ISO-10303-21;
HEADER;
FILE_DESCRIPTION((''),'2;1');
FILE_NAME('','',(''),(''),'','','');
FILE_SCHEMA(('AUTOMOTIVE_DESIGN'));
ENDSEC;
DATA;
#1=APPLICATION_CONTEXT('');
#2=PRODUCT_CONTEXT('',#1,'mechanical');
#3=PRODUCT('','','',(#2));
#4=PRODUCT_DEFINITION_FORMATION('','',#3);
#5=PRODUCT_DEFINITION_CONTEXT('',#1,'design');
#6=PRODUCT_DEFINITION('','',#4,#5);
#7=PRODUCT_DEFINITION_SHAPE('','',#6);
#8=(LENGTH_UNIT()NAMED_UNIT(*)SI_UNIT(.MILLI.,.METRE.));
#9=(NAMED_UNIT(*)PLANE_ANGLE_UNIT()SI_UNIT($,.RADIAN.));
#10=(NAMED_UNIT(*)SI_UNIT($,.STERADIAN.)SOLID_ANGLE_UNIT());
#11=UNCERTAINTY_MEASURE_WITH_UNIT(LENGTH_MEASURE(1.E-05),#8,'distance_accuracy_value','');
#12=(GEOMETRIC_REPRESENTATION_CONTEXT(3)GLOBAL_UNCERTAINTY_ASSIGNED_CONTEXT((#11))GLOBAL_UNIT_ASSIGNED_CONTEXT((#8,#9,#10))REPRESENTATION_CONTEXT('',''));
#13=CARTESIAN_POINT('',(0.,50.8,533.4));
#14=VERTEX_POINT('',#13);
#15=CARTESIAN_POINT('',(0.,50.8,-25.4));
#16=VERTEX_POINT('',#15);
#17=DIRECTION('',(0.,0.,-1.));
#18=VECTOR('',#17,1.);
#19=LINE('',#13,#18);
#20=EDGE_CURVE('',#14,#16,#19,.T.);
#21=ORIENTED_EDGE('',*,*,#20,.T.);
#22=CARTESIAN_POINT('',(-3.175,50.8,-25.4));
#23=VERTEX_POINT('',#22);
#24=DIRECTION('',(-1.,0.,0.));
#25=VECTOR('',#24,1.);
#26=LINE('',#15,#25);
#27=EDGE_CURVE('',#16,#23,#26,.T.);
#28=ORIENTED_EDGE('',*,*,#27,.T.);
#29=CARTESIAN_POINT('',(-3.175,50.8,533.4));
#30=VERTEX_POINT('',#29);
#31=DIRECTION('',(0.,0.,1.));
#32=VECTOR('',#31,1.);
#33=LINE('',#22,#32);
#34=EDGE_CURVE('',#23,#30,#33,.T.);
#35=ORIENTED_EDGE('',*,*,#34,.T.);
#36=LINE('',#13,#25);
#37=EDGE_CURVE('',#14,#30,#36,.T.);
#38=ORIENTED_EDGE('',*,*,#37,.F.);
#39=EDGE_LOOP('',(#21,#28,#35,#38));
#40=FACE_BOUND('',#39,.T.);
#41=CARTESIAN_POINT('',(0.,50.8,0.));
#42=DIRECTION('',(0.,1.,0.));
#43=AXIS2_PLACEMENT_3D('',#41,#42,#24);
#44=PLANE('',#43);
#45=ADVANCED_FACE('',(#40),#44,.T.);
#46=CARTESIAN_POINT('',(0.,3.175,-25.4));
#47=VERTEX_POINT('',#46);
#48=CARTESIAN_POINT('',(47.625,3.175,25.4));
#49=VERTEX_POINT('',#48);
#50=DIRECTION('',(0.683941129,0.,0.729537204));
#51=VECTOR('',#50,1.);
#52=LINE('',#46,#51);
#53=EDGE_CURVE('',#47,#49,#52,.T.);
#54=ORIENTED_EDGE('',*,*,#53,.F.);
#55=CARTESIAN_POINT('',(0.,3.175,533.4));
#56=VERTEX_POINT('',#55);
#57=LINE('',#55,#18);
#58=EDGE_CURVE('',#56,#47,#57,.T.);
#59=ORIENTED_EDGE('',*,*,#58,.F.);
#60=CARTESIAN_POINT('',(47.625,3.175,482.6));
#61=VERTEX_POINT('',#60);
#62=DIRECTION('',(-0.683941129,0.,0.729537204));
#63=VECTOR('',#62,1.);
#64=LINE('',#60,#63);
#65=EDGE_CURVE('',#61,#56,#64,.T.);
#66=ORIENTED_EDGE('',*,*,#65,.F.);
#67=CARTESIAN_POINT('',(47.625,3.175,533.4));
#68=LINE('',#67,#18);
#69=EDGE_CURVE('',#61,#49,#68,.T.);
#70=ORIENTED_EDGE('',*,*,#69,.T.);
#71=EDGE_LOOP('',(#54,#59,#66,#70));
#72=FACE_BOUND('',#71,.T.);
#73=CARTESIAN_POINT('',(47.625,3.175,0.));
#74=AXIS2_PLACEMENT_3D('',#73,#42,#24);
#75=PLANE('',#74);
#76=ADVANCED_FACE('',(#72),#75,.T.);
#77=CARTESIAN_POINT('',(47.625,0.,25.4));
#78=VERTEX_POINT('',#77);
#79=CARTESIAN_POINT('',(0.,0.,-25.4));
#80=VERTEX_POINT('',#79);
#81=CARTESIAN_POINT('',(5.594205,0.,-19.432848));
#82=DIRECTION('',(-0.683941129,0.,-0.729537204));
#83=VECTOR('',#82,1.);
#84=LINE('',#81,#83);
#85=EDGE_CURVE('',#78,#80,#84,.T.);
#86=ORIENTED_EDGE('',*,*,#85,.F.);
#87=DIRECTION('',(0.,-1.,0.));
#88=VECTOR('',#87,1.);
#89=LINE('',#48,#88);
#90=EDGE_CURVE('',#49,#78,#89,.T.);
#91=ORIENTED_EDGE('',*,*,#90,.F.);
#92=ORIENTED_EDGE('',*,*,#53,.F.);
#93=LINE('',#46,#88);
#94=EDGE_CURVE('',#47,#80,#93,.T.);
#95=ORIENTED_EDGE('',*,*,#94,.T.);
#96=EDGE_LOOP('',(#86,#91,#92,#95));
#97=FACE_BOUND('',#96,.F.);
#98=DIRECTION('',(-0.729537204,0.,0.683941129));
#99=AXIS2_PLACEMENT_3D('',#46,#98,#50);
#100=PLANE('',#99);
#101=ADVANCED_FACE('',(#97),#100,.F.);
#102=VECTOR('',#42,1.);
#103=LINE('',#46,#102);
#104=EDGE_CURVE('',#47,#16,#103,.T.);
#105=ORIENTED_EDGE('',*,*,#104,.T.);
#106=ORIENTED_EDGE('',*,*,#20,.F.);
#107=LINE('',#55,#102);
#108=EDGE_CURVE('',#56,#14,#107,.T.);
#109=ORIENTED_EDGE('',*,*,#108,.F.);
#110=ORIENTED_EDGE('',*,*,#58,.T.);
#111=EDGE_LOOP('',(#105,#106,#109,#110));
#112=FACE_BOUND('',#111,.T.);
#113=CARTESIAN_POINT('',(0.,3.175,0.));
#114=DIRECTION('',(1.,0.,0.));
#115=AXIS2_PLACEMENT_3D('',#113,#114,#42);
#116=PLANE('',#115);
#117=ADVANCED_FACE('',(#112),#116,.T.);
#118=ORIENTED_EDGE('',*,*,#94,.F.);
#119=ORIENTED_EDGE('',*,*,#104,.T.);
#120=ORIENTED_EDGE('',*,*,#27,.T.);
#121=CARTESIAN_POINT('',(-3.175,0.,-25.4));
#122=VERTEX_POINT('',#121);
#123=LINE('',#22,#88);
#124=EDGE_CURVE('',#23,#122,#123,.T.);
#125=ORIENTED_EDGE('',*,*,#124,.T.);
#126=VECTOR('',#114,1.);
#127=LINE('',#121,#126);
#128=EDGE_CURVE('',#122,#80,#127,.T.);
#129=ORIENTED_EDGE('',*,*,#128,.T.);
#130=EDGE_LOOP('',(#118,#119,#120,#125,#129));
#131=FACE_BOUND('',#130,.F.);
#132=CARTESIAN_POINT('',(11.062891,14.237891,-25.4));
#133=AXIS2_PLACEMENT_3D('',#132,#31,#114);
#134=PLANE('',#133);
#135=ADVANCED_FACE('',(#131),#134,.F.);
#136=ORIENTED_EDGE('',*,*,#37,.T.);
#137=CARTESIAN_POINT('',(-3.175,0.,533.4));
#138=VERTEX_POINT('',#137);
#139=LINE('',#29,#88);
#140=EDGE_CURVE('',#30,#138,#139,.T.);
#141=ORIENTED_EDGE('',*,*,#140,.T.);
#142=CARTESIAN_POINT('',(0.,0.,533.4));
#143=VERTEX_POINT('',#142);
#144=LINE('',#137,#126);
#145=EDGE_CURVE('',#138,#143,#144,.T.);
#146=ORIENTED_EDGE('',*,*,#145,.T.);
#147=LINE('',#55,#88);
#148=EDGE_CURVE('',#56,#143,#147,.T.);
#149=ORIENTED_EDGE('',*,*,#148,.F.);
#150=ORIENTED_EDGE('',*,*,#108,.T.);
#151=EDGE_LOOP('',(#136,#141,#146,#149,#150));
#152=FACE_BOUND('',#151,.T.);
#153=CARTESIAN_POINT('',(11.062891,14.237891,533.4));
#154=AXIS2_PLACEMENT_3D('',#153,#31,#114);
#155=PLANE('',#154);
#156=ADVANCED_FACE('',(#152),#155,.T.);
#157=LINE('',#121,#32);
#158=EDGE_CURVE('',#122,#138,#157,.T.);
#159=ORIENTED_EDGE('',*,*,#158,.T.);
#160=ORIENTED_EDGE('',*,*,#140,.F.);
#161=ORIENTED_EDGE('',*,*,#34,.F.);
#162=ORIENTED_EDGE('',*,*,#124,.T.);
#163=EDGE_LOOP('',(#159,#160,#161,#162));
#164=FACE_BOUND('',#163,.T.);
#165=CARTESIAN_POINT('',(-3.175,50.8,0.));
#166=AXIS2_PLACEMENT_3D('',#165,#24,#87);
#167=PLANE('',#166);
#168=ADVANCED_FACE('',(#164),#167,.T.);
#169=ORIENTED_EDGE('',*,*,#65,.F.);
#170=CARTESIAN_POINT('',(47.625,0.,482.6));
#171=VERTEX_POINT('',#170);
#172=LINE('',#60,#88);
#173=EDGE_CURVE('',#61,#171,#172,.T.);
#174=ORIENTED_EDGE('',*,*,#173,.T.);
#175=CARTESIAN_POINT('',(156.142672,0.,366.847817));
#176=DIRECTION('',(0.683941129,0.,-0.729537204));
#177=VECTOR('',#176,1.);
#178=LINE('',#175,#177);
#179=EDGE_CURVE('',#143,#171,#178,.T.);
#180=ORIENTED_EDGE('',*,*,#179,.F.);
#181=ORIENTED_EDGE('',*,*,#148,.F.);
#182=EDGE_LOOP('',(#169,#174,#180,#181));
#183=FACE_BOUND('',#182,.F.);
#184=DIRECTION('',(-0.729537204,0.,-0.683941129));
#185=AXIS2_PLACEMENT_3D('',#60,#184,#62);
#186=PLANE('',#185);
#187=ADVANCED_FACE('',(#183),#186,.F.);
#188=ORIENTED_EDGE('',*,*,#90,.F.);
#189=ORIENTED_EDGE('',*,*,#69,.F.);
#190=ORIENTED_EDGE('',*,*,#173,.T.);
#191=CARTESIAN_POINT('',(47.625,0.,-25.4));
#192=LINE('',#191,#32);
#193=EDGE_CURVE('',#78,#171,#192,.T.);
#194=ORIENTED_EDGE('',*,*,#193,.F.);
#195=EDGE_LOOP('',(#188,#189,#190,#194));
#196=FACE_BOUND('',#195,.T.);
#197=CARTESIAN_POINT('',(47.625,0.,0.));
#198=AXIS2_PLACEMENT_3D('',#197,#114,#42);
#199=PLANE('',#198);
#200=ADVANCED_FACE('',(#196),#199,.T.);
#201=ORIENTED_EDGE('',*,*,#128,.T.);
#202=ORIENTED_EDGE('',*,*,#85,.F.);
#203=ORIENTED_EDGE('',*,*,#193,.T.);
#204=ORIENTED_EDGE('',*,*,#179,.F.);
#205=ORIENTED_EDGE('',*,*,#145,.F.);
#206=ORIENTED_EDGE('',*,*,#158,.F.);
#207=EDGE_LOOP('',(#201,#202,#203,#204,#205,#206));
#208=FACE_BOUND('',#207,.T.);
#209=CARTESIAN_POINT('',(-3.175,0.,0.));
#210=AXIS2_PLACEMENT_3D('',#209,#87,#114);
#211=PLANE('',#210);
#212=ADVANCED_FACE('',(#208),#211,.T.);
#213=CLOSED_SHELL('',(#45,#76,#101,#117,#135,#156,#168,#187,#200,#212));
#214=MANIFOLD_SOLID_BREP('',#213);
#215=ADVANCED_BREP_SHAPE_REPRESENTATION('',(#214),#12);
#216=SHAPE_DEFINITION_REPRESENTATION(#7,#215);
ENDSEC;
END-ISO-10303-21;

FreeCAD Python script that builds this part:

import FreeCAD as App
import Part
import Sketcher

V = App.Vector
Q = App.Units.Quantity

doc = App.newDocument("Part")
body = doc.addObject("PartDesign::Body", "Body")

sketch1 = body.newObject("Sketcher::SketchObject", "Sketch")
sketch1.AttachmentSupport = (doc.getObject("XY_Plane"), [""])
sketch1.MapMode = "FlatFace"
sketch1.addGeometry(Part.LineSegment(V(0, 50.8, 0), V(-3.2, 50.8, 0)), False)
sketch1.addGeometry(Part.LineSegment(V(-3.2, 50.8, 0), V(-3.2, 0, 0)), False)
sketch1.addGeometry(Part.LineSegment(V(-3.2, 0, 0), V(47.6, 0, 0)), False)
sketch1.addGeometry(Part.LineSegment(V(47.6, 0, 0), V(47.6, 3.2, 0)), False)
sketch1.addGeometry(Part.LineSegment(V(47.6, 3.2, 0), V(0, 3.2, 0)), False)
sketch1.addGeometry(Part.LineSegment(V(0, 3.2, 0), V(0, 50.8, 0)), False)
sketch1.addConstraint(Sketcher.Constraint("Coincident", 0, 2, 1, 1))
sketch1.addConstraint(Sketcher.Constraint("Coincident", 1, 2, 2, 1))
sketch1.addConstraint(Sketcher.Constraint("Coincident", 2, 2, 3, 1))
sketch1.addConstraint(Sketcher.Constraint("Coincident", 3, 2, 4, 1))
sketch1.addConstraint(Sketcher.Constraint("Coincident", 4, 2, 5, 1))
sketch1.addConstraint(Sketcher.Constraint("Coincident", 5, 2, 0, 1))
sketch1.addConstraint(Sketcher.Constraint("Horizontal", 0))
sketch1.addConstraint(Sketcher.Constraint("Vertical", 1))
sketch1.addConstraint(Sketcher.Constraint("Horizontal", 2))
sketch1.addConstraint(Sketcher.Constraint("Vertical", 3))
sketch1.addConstraint(Sketcher.Constraint("Horizontal", 4))
sketch1.addConstraint(Sketcher.Constraint("Vertical", 5))
sketch1.addConstraint(Sketcher.Constraint("PointOnObject", 1, 2, -1))
sketch1.addConstraint(Sketcher.Constraint("PointOnObject", 4, 2, -2))
sketch1.addConstraint(Sketcher.Constraint("Equal", 2, 1))
sketch1.addConstraint(Sketcher.Constraint("Equal", 0, 3))
sketch1.addConstraint(Sketcher.Constraint("DistanceX", 2, 1, 2, 2, Q("2 in")))
sketch1.addConstraint(Sketcher.Constraint("DistanceX", 0, 2, 0, 1, Q("0.125 in")))
pad1 = body.newObject("PartDesign::Pad", "Pad")
pad1.Profile = sketch1
pad1.Type = "TwoLengths"
pad1.Length = Q("21 in")
pad1.Length2 = Q("1 in")

sketch2 = body.newObject("Sketcher::SketchObject", "Sketch001")
sketch2.AttachmentSupport = (doc.getObject("XZ_Plane"), [""])
sketch2.MapMode = "FlatFace"
sketch2.AttachmentOffset = App.Placement(V(0, 0, -0.125 * 25.4), App.Rotation())
sketch2.addGeometry(Part.LineSegment(V(48, 533, 0), V(48, 483, 0)), False)
sketch2.addGeometry(Part.LineSegment(V(48, 483, 0), V(0, 533, 0)), False)
sketch2.addGeometry(Part.LineSegment(V(0, 533, 0), V(48, 533, 0)), False)
sketch2.addGeometry(Part.LineSegment(V(0, -25, 0), V(48, 25, 0)), False)
sketch2.addGeometry(Part.LineSegment(V(48, 25, 0), V(48, -25, 0)), False)
sketch2.addGeometry(Part.LineSegment(V(48, -25, 0), V(0, -25, 0)), False)
sketch2.addConstraint(Sketcher.Constraint("Coincident", 0, 2, 1, 1))
sketch2.addConstraint(Sketcher.Constraint("Coincident", 1, 2, 2, 1))
sketch2.addConstraint(Sketcher.Constraint("Coincident", 2, 2, 0, 1))
sketch2.addConstraint(Sketcher.Constraint("Coincident", 3, 2, 4, 1))
sketch2.addConstraint(Sketcher.Constraint("Coincident", 4, 2, 5, 1))
sketch2.addConstraint(Sketcher.Constraint("Coincident", 5, 2, 3, 1))
sketch2.addConstraint(Sketcher.Constraint("Vertical", 0))
sketch2.addConstraint(Sketcher.Constraint("Horizontal", 2))
sketch2.addConstraint(Sketcher.Constraint("Vertical", 4))
sketch2.addConstraint(Sketcher.Constraint("Horizontal", 5))
sketch2.addConstraint(Sketcher.Constraint("PointOnObject", 1, 2, -2))
sketch2.addConstraint(Sketcher.Constraint("PointOnObject", 5, 2, -2))
sketch2.addConstraint(Sketcher.Constraint("Vertical", 2, 2, 3, 2))
sketch2.addConstraint(Sketcher.Constraint("Equal", 0, 4))
sketch2.addConstraint(Sketcher.Constraint("DistanceY", 0, 2, 0, 1, Q("2 in")))
sketch2.addConstraint(Sketcher.Constraint("DistanceY", -1, 1, 0, 2, Q("19 in")))
sketch2.addConstraint(Sketcher.Constraint("DistanceY", -1, 1, 3, 2, Q("1 in")))
sketch2.addConstraint(Sketcher.Constraint("DistanceX", 2, 1, 2, 2, Q("1.875 in")))
pocket1 = body.newObject("PartDesign::Pocket", "Pocket")
pocket1.Profile = sketch2
pocket1.Type = "ThroughAll"
pocket1.Reversed = True

doc.recompute()
